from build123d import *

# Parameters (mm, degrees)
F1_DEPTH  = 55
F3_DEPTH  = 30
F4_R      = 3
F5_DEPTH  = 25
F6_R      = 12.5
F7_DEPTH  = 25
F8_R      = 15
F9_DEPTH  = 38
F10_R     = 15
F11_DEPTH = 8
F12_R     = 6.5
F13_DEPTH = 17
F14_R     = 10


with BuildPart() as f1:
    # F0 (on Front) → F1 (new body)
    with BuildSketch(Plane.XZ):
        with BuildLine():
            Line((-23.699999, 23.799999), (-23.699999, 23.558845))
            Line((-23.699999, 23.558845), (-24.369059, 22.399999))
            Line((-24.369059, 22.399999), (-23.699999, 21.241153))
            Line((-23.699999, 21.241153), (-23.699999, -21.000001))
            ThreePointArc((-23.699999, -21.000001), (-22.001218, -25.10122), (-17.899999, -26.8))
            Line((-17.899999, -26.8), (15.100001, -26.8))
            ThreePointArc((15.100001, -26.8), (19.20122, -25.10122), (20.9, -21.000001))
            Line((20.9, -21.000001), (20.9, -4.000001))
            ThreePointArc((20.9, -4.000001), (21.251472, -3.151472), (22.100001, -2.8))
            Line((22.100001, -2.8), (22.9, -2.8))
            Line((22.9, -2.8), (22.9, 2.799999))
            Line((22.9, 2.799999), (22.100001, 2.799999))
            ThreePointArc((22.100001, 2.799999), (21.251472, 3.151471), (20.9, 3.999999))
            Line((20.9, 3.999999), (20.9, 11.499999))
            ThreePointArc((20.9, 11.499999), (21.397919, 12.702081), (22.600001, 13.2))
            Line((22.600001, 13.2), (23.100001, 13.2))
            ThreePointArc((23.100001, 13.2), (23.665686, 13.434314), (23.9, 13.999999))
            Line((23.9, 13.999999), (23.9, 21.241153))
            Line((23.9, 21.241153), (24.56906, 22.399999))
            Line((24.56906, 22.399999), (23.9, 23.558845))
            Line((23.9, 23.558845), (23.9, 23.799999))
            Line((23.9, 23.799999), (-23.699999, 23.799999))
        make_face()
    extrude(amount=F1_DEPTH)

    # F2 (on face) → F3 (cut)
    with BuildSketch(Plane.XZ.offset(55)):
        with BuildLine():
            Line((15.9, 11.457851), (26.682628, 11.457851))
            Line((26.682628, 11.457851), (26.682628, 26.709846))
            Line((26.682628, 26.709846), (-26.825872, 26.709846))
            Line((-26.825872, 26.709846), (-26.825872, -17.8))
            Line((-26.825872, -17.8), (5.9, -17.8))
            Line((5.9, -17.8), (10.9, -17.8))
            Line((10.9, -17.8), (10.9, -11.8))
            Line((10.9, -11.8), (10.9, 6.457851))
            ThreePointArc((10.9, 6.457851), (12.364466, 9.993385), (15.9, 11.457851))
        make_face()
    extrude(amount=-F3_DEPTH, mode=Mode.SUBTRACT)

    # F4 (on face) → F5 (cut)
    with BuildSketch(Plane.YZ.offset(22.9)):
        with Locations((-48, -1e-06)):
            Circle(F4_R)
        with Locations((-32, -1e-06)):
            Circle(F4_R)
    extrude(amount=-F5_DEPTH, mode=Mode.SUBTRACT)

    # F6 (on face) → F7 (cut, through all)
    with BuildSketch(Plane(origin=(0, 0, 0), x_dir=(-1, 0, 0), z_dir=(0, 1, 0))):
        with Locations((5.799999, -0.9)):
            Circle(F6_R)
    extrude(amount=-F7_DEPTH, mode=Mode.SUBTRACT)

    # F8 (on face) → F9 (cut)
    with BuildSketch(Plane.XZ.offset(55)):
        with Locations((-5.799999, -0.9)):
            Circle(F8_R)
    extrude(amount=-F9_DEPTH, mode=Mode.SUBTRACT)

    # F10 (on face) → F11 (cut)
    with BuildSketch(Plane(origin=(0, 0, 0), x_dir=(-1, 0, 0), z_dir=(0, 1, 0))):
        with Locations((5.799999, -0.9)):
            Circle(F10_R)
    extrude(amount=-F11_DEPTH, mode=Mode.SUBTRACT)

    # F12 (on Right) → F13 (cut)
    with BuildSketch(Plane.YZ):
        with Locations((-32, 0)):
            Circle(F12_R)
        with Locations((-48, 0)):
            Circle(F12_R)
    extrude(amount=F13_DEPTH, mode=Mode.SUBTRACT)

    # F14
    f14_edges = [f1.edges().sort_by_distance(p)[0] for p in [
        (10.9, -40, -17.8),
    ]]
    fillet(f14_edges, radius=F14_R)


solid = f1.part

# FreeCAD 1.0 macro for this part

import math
import FreeCAD as App
import Part
import Sketcher

V = App.Vector
Q = App.Units.Quantity


def edges_at(feature, points):
    """Names of the edges that pass closest to the given points."""
    edges = feature.Shape.Edges
    near = lambda p: min(range(len(edges)), key=lambda i: edges[i].distToShape(Part.Vertex(*p))[0])
    return sorted({f"Edge{near(p) + 1}" for p in points})

doc = App.newDocument("Part")
body = doc.addObject("PartDesign::Body", "Body")

# Sketch on XZ plane
sketch1 = body.newObject("Sketcher::SketchObject", "Sketch")
sketch1.AttachmentSupport = (doc.getObject("XZ_Plane"), [""])
sketch1.MapMode = "FlatFace"
sketch1.addGeometry(Part.LineSegment(V(-23.699999, 23.799999, 0), V(-23.699999, 23.558845, 0)), False)
sketch1.addGeometry(Part.LineSegment(V(-23.699999, 23.558845, 0), V(-24.369059, 22.399999, 0)), False)
sketch1.addGeometry(Part.LineSegment(V(-24.369059, 22.399999, 0), V(-23.699999, 21.241153, 0)), False)
sketch1.addGeometry(Part.LineSegment(V(-23.699999, 21.241153, 0), V(-23.699999, -21.000001, 0)), False)
sketch1.addGeometry(Part.ArcOfCircle(Part.Circle(V(-17.9, -21.000001, 0), V(0, 0, 1), 5.799999), math.radians(-179.999996), math.radians(-89.999994)), False)
sketch1.addGeometry(Part.LineSegment(V(-17.899999, -26.8, 0), V(15.100001, -26.8, 0)), False)
sketch1.addGeometry(Part.ArcOfCircle(Part.Circle(V(15.100002, -21.000002, 0), V(0, 0, 1), 5.799998), math.radians(-90.000013), math.radians(0.000013)), False)
sketch1.addGeometry(Part.LineSegment(V(20.9, -21.000001, 0), V(20.9, -4.000001, 0)), False)
sketch1.addGeometry(Part.ArcOfCircle(Part.Circle(V(22.1, -4, 0), V(0, 0, 1), 1.2), math.radians(89.999975), math.radians(180.000025)), False)
sketch1.addGeometry(Part.LineSegment(V(22.100001, -2.8, 0), V(22.9, -2.8, 0)), False)
sketch1.addGeometry(Part.LineSegment(V(22.9, -2.8, 0), V(22.9, 2.799999, 0)), False)
sketch1.addGeometry(Part.LineSegment(V(22.9, 2.799999, 0), V(22.100001, 2.799999, 0)), False)
sketch1.addGeometry(Part.ArcOfCircle(Part.Circle(V(22.1, 3.999999, 0), V(0, 0, 1), 1.2), math.radians(-179.999978), math.radians(-89.999975)), False)
sketch1.addGeometry(Part.LineSegment(V(20.9, 3.999999, 0), V(20.9, 11.499999, 0)), False)
sketch1.addGeometry(Part.ArcOfCircle(Part.Circle(V(22.600002, 11.499998, 0), V(0, 0, 1), 1.700002), math.radians(90.000027), math.radians(179.999973)), False)
sketch1.addGeometry(Part.LineSegment(V(22.600001, 13.2, 0), V(23.100001, 13.2, 0)), False)
sketch1.addGeometry(Part.ArcOfCircle(Part.Circle(V(23.100002, 13.999998, 0), V(0, 0, 1), 0.799998), math.radians(-90.000069), math.radians(0.000069)), False)
sketch1.addGeometry(Part.LineSegment(V(23.9, 13.999999, 0), V(23.9, 21.241153, 0)), False)
sketch1.addGeometry(Part.LineSegment(V(23.9, 21.241153, 0), V(24.56906, 22.399999, 0)), False)
sketch1.addGeometry(Part.LineSegment(V(24.56906, 22.399999, 0), V(23.9, 23.558845, 0)), False)
sketch1.addGeometry(Part.LineSegment(V(23.9, 23.558845, 0), V(23.9, 23.799999, 0)), False)
sketch1.addGeometry(Part.LineSegment(V(23.9, 23.799999, 0), V(-23.699999, 23.799999, 0)), False)
sketch1.addConstraint(Sketcher.Constraint("Coincident", 0, 2, 1, 1))
sketch1.addConstraint(Sketcher.Constraint("Coincident", 1, 2, 2, 1))
sketch1.addConstraint(Sketcher.Constraint("Coincident", 2, 2, 3, 1))
sketch1.addConstraint(Sketcher.Constraint("Tangent", 3, 2, 4, 1))
sketch1.addConstraint(Sketcher.Constraint("Tangent", 4, 2, 5, 1))
sketch1.addConstraint(Sketcher.Constraint("Tangent", 5, 2, 6, 1))
sketch1.addConstraint(Sketcher.Constraint("Tangent", 6, 2, 7, 1))
sketch1.addConstraint(Sketcher.Constraint("Tangent", 7, 2, 8, 2))
sketch1.addConstraint(Sketcher.Constraint("Tangent", 8, 1, 9, 1))
sketch1.addConstraint(Sketcher.Constraint("Coincident", 9, 2, 10, 1))
sketch1.addConstraint(Sketcher.Constraint("Coincident", 10, 2, 11, 1))
sketch1.addConstraint(Sketcher.Constraint("Tangent", 11, 2, 12, 2))
sketch1.addConstraint(Sketcher.Constraint("Tangent", 12, 1, 13, 1))
sketch1.addConstraint(Sketcher.Constraint("Tangent", 13, 2, 14, 2))
sketch1.addConstraint(Sketcher.Constraint("Tangent", 14, 1, 15, 1))
sketch1.addConstraint(Sketcher.Constraint("Tangent", 15, 2, 16, 1))
sketch1.addConstraint(Sketcher.Constraint("Tangent", 16, 2, 17, 1))
sketch1.addConstraint(Sketcher.Constraint("Coincident", 17, 2, 18, 1))
sketch1.addConstraint(Sketcher.Constraint("Coincident", 18, 2, 19, 1))
sketch1.addConstraint(Sketcher.Constraint("Coincident", 19, 2, 20, 1))
sketch1.addConstraint(Sketcher.Constraint("Coincident", 20, 2, 21, 1))
sketch1.addConstraint(Sketcher.Constraint("Coincident", 21, 2, 0, 1))
sketch1.addConstraint(Sketcher.Constraint("Vertical", 0))
sketch1.addConstraint(Sketcher.Constraint("Vertical", 3))
sketch1.addConstraint(Sketcher.Constraint("Horizontal", 5))
sketch1.addConstraint(Sketcher.Constraint("Vertical", 7))
sketch1.addConstraint(Sketcher.Constraint("Horizontal", 9))
sketch1.addConstraint(Sketcher.Constraint("Vertical", 10))
sketch1.addConstraint(Sketcher.Constraint("Horizontal", 11))
sketch1.addConstraint(Sketcher.Constraint("Vertical", 13))
sketch1.addConstraint(Sketcher.Constraint("Horizontal", 15))
sketch1.addConstraint(Sketcher.Constraint("Vertical", 17))
sketch1.addConstraint(Sketcher.Constraint("Vertical", 20))
sketch1.addConstraint(Sketcher.Constraint("Horizontal", 21))
sketch1.addConstraint(Sketcher.Constraint("Equal", 4, 6))
sketch1.addConstraint(Sketcher.Constraint("Equal", 8, 12))
sketch1.addConstraint(Sketcher.Constraint("Symmetric", 8, 3, 12, 3, -1))
sketch1.addConstraint(Sketcher.Constraint("Parallel", 1, 18))
sketch1.addConstraint(Sketcher.Constraint("Parallel", 2, 19))
sketch1.addConstraint(Sketcher.Constraint("Horizontal", 2, 2, 17, 2))
sketch1.addConstraint(Sketcher.Constraint("Horizontal", 1, 2, 18, 2))
sketch1.addConstraint(Sketcher.Constraint("Horizontal", 0, 2, 19, 2))
sketch1.addConstraint(Sketcher.Constraint("Vertical", 0, 2, 2, 2))
sketch1.addConstraint(Sketcher.Constraint("Vertical", 17, 2, 19, 2))
sketch1.addConstraint(Sketcher.Constraint("Radius", 4, 5.799999))
sketch1.addConstraint(Sketcher.Constraint("Radius", 8, 1.2))
sketch1.addConstraint(Sketcher.Constraint("Radius", 14, 1.700002))
sketch1.addConstraint(Sketcher.Constraint("Radius", 16, 0.799998))
sketch1.addConstraint(Sketcher.Constraint("DistanceX", 5, 1, 5, 2, 33.0))
sketch1.addConstraint(Sketcher.Constraint("DistanceY", 7, 1, 7, 2, 17.0))
sketch1.addConstraint(Sketcher.Constraint("Angle", 1, Q("-119.999998 deg")))
sketch1.addConstraint(Sketcher.Constraint("DistanceX", 9, 1, 9, 2, 0.799999))
sketch1.addConstraint(Sketcher.Constraint("DistanceX", 15, 1, 15, 2, 0.5))
sketch1.addConstraint(Sketcher.Constraint("DistanceY", 10, 1, 10, 2, 5.599999))
sketch1.addConstraint(Sketcher.Constraint("DistanceY", 13, 1, 13, 2, 7.5))
sketch1.addConstraint(Sketcher.Constraint("DistanceX", 4, 3, -1, 1, 17.9))
sketch1.addConstraint(Sketcher.Constraint("DistanceY", -1, 1, 1, 2, 22.399999))
sketch1.addConstraint(Sketcher.Constraint("DistanceY", -1, 1, 20, 2, 23.799999))
sketch1.addConstraint(Sketcher.Constraint("Distance", 1, 1.33812))
pad1 = body.newObject("PartDesign::Pad", "Pad")
pad1.Profile = sketch1
pad1.Length = 55

# Sketch on XZ plane
sketch2 = body.newObject("Sketcher::SketchObject", "Sketch001")
sketch2.AttachmentSupport = (doc.getObject("XZ_Plane"), [""])
sketch2.MapMode = "FlatFace"
sketch2.AttachmentOffset = App.Placement(V(0, 0, 55), App.Rotation())
sketch2.addGeometry(Part.LineSegment(V(15.9, 11.457851, 0), V(26.682628, 11.457851, 0)), False)
sketch2.addGeometry(Part.LineSegment(V(26.682628, 11.457851, 0), V(26.682628, 26.709846, 0)), False)
sketch2.addGeometry(Part.LineSegment(V(26.682628, 26.709846, 0), V(-26.825872, 26.709846, 0)), False)
sketch2.addGeometry(Part.LineSegment(V(-26.825872, 26.709846, 0), V(-26.825872, -17.8, 0)), False)
sketch2.addGeometry(Part.LineSegment(V(-26.825872, -17.8, 0), V(10.9, -17.8, 0)), False)
sketch2.addGeometry(Part.LineSegment(V(10.9, -17.8, 0), V(10.9, 6.457851, 0)), False)
sketch2.addGeometry(Part.ArcOfCircle(Part.Circle(V(15.9, 6.457851, 0), V(0, 0, 1), 5), math.radians(89.999996), math.radians(180.000004)), False)
sketch2.addConstraint(Sketcher.Constraint("Coincident", 0, 2, 1, 1))
sketch2.addConstraint(Sketcher.Constraint("Coincident", 1, 2, 2, 1))
sketch2.addConstraint(Sketcher.Constraint("Coincident", 2, 2, 3, 1))
sketch2.addConstraint(Sketcher.Constraint("Coincident", 3, 2, 4, 1))
sketch2.addConstraint(Sketcher.Constraint("Coincident", 4, 2, 5, 1))
sketch2.addConstraint(Sketcher.Constraint("Tangent", 5, 2, 6, 2))
sketch2.addConstraint(Sketcher.Constraint("Tangent", 6, 1, 0, 1))
sketch2.addConstraint(Sketcher.Constraint("Horizontal", 0))
sketch2.addConstraint(Sketcher.Constraint("Vertical", 1))
sketch2.addConstraint(Sketcher.Constraint("Horizontal", 2))
sketch2.addConstraint(Sketcher.Constraint("Vertical", 3))
sketch2.addConstraint(Sketcher.Constraint("Horizontal", 4))
sketch2.addConstraint(Sketcher.Constraint("Vertical", 5))
sketch2.addConstraint(Sketcher.Constraint("Radius", 6, 5.0))
sketch2.addConstraint(Sketcher.Constraint("DistanceX", -1, 1, 6, 3, 15.9))
sketch2.addConstraint(Sketcher.Constraint("DistanceY", 3, 2, -1, 1, 17.8))
sketch2.addConstraint(Sketcher.Constraint("DistanceX", 2, 2, 2, 1, 53.5085))
sketch2.addConstraint(Sketcher.Constraint("DistanceX", 0, 1, 0, 2, 10.782628))
sketch2.addConstraint(Sketcher.Constraint("DistanceY", 5, 1, 5, 2, 24.257851))
sketch2.addConstraint(Sketcher.Constraint("DistanceY", 1, 1, 1, 2, 15.251995))
pocket1 = body.newObject("PartDesign::Pocket", "Pocket")
pocket1.Profile = sketch2
pocket1.Length = 30

# Sketch on YZ plane
sketch3 = body.newObject("Sketcher::SketchObject", "Sketch002")
sketch3.AttachmentSupport = (doc.getObject("YZ_Plane"), [""])
sketch3.MapMode = "FlatFace"
sketch3.AttachmentOffset = App.Placement(V(0, 0, 22.9), App.Rotation())
sketch3.addGeometry(Part.Circle(V(-48, -0.000001, 0), V(0, 0, 1), 3), False)
sketch3.addGeometry(Part.Circle(V(-32, -0.000001, 0), V(0, 0, 1), 3), False)
sketch3.addConstraint(Sketcher.Constraint("Equal", 0, 1))
sketch3.addConstraint(Sketcher.Constraint("PointOnObject", 0, 3, -1))
sketch3.addConstraint(Sketcher.Constraint("PointOnObject", 1, 3, -1))
sketch3.addConstraint(Sketcher.Constraint("Diameter", 0, 6.0))
sketch3.addConstraint(Sketcher.Constraint("DistanceX", 0, 3, -1, 1, 48.0))
sketch3.addConstraint(Sketcher.Constraint("DistanceX", 1, 3, -1, 1, 32.0))
pocket2 = body.newObject("PartDesign::Pocket", "Pocket001")
pocket2.Profile = sketch3
pocket2.Length = 25

# Sketch on XZ plane
sketch4 = body.newObject("Sketcher::SketchObject", "Sketch003")
sketch4.AttachmentSupport = (doc.getObject("XZ_Plane"), [""])
sketch4.MapMode = "FlatFace"
sketch4.addGeometry(Part.Circle(V(-5.799999, -0.9, 0), V(0, 0, 1), 12.5), False)
sketch4.addConstraint(Sketcher.Constraint("Diameter", 0, 25.0))
sketch4.addConstraint(Sketcher.Constraint("DistanceX", 0, 3, -1, 1, 5.799999))
sketch4.addConstraint(Sketcher.Constraint("DistanceY", 0, 3, -1, 1, 0.9))
pocket3 = body.newObject("PartDesign::Pocket", "Pocket002")
pocket3.Profile = sketch4
pocket3.Type = "ThroughAll"
pocket3.Reversed = True

# Sketch on XZ plane
sketch5 = body.newObject("Sketcher::SketchObject", "Sketch004")
sketch5.AttachmentSupport = (doc.getObject("XZ_Plane"), [""])
sketch5.MapMode = "FlatFace"
sketch5.AttachmentOffset = App.Placement(V(0, 0, 55), App.Rotation())
sketch5.addGeometry(Part.Circle(V(-5.799999, -0.9, 0), V(0, 0, 1), 15), False)
sketch5.addConstraint(Sketcher.Constraint("Diameter", 0, 30.0))
sketch5.addConstraint(Sketcher.Constraint("DistanceX", 0, 3, -1, 1, 5.799999))
sketch5.addConstraint(Sketcher.Constraint("DistanceY", 0, 3, -1, 1, 0.9))
pocket4 = body.newObject("PartDesign::Pocket", "Pocket003")
pocket4.Profile = sketch5
pocket4.Length = 38

# Sketch on XZ plane
sketch6 = body.newObject("Sketcher::SketchObject", "Sketch005")
sketch6.AttachmentSupport = (doc.getObject("XZ_Plane"), [""])
sketch6.MapMode = "FlatFace"
sketch6.addGeometry(Part.Circle(V(-5.799999, -0.9, 0), V(0, 0, 1), 15), False)
sketch6.addConstraint(Sketcher.Constraint("Diameter", 0, 30.0))
sketch6.addConstraint(Sketcher.Constraint("DistanceX", 0, 3, -1, 1, 5.799999))
sketch6.addConstraint(Sketcher.Constraint("DistanceY", 0, 3, -1, 1, 0.9))
pocket5 = body.newObject("PartDesign::Pocket", "Pocket004")
pocket5.Profile = sketch6
pocket5.Length = 8
pocket5.Reversed = True

# Sketch on YZ plane
sketch7 = body.newObject("Sketcher::SketchObject", "Sketch006")
sketch7.AttachmentSupport = (doc.getObject("YZ_Plane"), [""])
sketch7.MapMode = "FlatFace"
sketch7.addGeometry(Part.Circle(V(-32, 0, 0), V(0, 0, 1), 6.5), False)
sketch7.addGeometry(Part.Circle(V(-48, 0, 0), V(0, 0, 1), 6.5), False)
sketch7.addConstraint(Sketcher.Constraint("Equal", 0, 1))
sketch7.addConstraint(Sketcher.Constraint("PointOnObject", 0, 3, -1))
sketch7.addConstraint(Sketcher.Constraint("PointOnObject", 1, 3, -1))
sketch7.addConstraint(Sketcher.Constraint("Diameter", 0, 13.0))
sketch7.addConstraint(Sketcher.Constraint("DistanceX", 0, 3, -1, 1, 32.0))
sketch7.addConstraint(Sketcher.Constraint("DistanceX", 1, 3, -1, 1, 48.0))
pocket6 = body.newObject("PartDesign::Pocket", "Pocket005")
pocket6.Profile = sketch7
pocket6.Length = 17
pocket6.Reversed = True
doc.recompute()

fillet = body.newObject("PartDesign::Fillet", "Fillet")
fillet.Base = (pocket6, edges_at(pocket6, [(10.9, -40, -17.8)]))
fillet.Radius = 10

doc.recompute()
